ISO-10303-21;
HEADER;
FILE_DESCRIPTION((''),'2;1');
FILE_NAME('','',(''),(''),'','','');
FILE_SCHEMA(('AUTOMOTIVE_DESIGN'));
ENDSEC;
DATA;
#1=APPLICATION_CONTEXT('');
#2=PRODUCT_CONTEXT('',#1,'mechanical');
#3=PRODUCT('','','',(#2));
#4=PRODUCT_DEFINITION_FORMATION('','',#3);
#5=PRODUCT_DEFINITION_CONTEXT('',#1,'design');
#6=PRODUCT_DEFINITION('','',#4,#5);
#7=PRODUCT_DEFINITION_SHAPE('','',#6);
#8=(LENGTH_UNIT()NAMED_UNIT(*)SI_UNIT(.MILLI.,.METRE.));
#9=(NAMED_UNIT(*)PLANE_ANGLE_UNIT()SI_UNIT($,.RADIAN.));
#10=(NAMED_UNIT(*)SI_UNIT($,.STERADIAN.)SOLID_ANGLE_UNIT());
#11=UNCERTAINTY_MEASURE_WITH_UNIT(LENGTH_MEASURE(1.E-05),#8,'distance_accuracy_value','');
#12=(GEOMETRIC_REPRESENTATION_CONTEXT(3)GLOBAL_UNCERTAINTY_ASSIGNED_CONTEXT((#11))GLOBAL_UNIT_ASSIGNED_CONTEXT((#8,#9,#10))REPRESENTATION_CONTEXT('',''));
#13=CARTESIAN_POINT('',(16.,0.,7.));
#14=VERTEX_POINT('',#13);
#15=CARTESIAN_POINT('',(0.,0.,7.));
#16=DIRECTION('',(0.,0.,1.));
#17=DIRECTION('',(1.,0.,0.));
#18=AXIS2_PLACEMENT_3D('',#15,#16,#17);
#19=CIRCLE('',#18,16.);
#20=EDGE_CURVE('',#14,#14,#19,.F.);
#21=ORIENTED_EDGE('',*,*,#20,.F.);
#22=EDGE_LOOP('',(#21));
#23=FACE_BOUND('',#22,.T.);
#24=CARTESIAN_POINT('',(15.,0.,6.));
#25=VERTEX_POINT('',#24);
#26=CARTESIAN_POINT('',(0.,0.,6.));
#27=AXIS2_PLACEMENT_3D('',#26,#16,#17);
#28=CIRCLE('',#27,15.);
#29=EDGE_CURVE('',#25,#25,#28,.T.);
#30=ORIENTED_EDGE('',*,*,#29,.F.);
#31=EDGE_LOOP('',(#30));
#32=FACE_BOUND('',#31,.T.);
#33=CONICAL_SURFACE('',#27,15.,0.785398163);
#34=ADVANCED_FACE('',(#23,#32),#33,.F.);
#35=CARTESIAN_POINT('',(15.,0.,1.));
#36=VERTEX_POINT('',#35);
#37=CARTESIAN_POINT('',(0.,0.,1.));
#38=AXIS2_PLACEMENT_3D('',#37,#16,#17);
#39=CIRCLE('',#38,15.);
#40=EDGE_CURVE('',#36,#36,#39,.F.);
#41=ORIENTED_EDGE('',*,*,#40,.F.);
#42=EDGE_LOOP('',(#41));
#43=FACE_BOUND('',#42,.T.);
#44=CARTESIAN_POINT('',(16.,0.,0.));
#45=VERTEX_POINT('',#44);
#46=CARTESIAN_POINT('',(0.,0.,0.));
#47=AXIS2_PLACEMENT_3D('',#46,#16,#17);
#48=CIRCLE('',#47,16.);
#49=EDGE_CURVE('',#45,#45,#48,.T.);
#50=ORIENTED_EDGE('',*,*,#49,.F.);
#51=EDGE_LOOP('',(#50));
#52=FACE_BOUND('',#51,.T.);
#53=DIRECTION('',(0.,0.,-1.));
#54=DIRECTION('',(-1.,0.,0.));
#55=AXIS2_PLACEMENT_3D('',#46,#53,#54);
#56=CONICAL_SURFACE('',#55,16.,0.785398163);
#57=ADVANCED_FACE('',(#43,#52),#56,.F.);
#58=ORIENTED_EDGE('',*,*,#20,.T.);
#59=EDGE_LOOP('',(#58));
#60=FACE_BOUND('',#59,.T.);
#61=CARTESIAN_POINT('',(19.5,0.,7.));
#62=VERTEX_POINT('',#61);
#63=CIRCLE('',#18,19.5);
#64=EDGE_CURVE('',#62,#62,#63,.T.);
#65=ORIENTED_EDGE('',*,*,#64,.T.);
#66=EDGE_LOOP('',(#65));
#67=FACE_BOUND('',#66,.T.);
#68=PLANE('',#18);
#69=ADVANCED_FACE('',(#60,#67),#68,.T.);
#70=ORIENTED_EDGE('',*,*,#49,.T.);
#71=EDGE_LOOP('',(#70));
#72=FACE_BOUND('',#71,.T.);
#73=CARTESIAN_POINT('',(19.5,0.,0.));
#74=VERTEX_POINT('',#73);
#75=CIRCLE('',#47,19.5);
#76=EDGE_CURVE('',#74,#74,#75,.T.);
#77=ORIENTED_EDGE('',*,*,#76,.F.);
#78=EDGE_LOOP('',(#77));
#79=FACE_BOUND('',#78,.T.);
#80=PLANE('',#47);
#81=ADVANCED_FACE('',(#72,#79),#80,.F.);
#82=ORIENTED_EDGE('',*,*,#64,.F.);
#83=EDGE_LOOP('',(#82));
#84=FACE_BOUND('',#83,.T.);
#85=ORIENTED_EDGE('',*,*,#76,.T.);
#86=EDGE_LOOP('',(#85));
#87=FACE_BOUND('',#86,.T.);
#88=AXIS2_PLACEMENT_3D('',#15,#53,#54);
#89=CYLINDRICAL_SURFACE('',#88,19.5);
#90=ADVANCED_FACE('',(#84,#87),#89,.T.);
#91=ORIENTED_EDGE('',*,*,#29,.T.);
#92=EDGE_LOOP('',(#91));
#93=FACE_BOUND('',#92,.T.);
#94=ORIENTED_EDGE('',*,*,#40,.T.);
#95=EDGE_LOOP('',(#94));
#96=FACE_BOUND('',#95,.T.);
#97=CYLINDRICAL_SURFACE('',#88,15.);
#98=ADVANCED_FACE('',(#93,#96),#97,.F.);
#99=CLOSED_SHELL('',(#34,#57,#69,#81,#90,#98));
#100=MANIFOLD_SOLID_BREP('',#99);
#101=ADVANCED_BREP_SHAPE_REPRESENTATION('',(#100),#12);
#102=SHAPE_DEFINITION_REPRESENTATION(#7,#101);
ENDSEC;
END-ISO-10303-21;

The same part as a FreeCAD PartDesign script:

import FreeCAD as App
import Part
import Sketcher
Q = App.Units.Quantity


def edges_at(feature, points):
    """Names of the edges that pass closest to the given points."""
    edges = feature.Shape.Edges
    near = lambda p: min(range(len(edges)), key=lambda i: edges[i].distToShape(Part.Vertex(*p))[0])
    return sorted({f"Edge{near(p) + 1}" for p in points})

doc = App.newDocument("Part")
body = doc.addObject("PartDesign::Body", "Body")

# Sketch on XY plane
sketch1 = body.newObject("Sketcher::SketchObject", "Sketch")
sketch1.AttachmentSupport = (doc.getObject("XY_Plane"), [""])
sketch1.MapMode = "FlatFace"
sketch1.addGeometry(Part.Circle(App.Vector(0, 0, 0), App.Vector(0, 0, 1), 20), False)
sketch1.addGeometry(Part.Circle(App.Vector(0, 0, 0), App.Vector(0, 0, 1), 15), False)
sketch1.addConstraint(Sketcher.Constraint("Coincident", 0, 3, -1, 1))
sketch1.addConstraint(Sketcher.Constraint("Coincident", 1, 3, -1, 1))
sketch1.addConstraint(Sketcher.Constraint("Diameter", 0, Q("39 mm")))
sketch1.addConstraint(Sketcher.Constraint("Diameter", 1, Q("30 mm")))
pad1 = body.newObject("PartDesign::Pad", "Pad")
pad1.Profile = sketch1
pad1.Length = 7
doc.recompute()

chamfer = body.newObject("PartDesign::Chamfer", "Chamfer")
chamfer.Base = (pad1, edges_at(pad1, [(-15, 0, 0), (-15, 0, 7)]))
chamfer.Size = 1

doc.recompute()
